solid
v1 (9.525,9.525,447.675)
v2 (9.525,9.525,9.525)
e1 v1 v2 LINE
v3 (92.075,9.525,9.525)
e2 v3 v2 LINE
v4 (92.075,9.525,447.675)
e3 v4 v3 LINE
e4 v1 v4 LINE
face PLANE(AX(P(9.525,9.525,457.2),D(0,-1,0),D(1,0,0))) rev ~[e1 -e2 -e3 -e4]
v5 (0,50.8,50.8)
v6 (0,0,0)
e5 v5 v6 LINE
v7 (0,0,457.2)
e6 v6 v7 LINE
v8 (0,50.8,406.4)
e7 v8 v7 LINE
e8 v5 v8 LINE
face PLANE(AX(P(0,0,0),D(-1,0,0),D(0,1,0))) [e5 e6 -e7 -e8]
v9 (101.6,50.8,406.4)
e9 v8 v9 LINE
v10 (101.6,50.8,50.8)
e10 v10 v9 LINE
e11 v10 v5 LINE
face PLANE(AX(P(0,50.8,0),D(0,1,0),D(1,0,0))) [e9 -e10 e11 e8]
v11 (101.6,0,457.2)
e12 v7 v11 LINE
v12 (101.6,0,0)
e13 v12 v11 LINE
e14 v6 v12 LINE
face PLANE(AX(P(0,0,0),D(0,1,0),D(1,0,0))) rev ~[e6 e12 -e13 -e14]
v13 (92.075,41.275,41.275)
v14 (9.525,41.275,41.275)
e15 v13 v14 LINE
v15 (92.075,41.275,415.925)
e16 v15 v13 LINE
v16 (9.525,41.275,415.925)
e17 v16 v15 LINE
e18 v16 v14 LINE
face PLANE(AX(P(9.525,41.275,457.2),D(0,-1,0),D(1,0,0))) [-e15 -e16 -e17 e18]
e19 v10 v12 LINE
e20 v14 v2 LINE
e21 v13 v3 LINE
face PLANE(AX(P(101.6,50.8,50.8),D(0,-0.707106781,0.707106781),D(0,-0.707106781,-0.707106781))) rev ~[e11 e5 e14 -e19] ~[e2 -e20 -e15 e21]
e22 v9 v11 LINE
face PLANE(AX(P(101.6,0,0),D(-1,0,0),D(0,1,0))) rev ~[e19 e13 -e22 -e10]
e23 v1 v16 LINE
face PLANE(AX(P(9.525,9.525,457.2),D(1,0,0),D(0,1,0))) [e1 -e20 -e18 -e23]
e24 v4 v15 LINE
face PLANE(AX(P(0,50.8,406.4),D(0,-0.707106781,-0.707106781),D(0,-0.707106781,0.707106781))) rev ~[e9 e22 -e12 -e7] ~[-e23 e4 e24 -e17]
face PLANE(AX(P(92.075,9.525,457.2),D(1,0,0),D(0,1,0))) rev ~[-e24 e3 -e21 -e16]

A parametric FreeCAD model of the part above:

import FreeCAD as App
import Part
import Sketcher
Q = App.Units.Quantity

doc = App.newDocument("Part")
body = doc.addObject("PartDesign::Body", "Body")

sketch1 = doc.addObject("Sketcher::SketchObject", "Sketch")
body.addObject(sketch1)
sketch1.AttachmentSupport = (doc.XY_Plane, [""])
sketch1.MapMode = "FlatFace"
sketch1.addGeometry([
    Part.LineSegment(App.Vector(0, 51, 0), App.Vector(0, 0, 0)),
    Part.LineSegment(App.Vector(0, 0, 0), App.Vector(102, 0, 0)),
    Part.LineSegment(App.Vector(102, 0, 0), App.Vector(102, 51, 0)),
    Part.LineSegment(App.Vector(102, 51, 0), App.Vector(0, 51, 0)),
], False)
sketch1.addConstraint([
    Sketcher.Constraint("Coincident", 0, 2, 1, 1),
    Sketcher.Constraint("Coincident", 1, 2, 2, 1),
    Sketcher.Constraint("Coincident", 2, 2, 3, 1),
    Sketcher.Constraint("Coincident", 3, 2, 0, 1),
    Sketcher.Constraint("Vertical", 0),
    Sketcher.Constraint("Horizontal", 1),
    Sketcher.Constraint("Vertical", 2),
    Sketcher.Constraint("Horizontal", 3),
    Sketcher.Constraint("Coincident", 0, 2, -1, 1),
    Sketcher.Constraint("DistanceX", 1, 1, 1, 2, Q("4 in")),
    Sketcher.Constraint("DistanceY", 0, 2, 0, 1, Q("2 in")),
])
pad1 = doc.addObject("PartDesign::Pad", "Pad")
body.addObject(pad1)
pad1.Profile = sketch1
pad1.Length = Q("18 in")

sketch2 = doc.addObject("Sketcher::SketchObject", "Sketch001")
body.addObject(sketch2)
sketch2.AttachmentSupport = (doc.XY_Plane, [""])
sketch2.MapMode = "FlatFace"
sketch2.AttachmentOffset = App.Placement(App.Vector(0, 0, 18 * 25.4), App.Rotation())
sketch2.addGeometry([
    Part.LineSegment(App.Vector(10, 41, 0), App.Vector(10, 10, 0)),
    Part.LineSegment(App.Vector(10, 10, 0), App.Vector(92, 10, 0)),
    Part.LineSegment(App.Vector(92, 10, 0), App.Vector(92, 41, 0)),
    Part.LineSegment(App.Vector(92, 41, 0), App.Vector(10, 41, 0)),
], False)
sketch2.addConstraint([
    Sketcher.Constraint("Coincident", 0, 2, 1, 1),
    Sketcher.Constraint("Coincident", 1, 2, 2, 1),
    Sketcher.Constraint("Coincident", 2, 2, 3, 1),
    Sketcher.Constraint("Coincident", 3, 2, 0, 1),
    Sketcher.Constraint("Vertical", 0),
    Sketcher.Constraint("Horizontal", 1),
    Sketcher.Constraint("Vertical", 2),
    Sketcher.Constraint("Horizontal", 3),
    Sketcher.Constraint("DistanceX", 1, 1, 1, 2, Q("3.25 in")),
    Sketcher.Constraint("DistanceY", 0, 2, 0, 1, Q("1.25 in")),
    Sketcher.Constraint("DistanceX", -1, 1, 0, 2, Q("0.375 in")),
    Sketcher.Constraint("DistanceY", -1, 1, 0, 2, Q("0.375 in")),
])
pocket1 = doc.addObject("PartDesign::Pocket", "Pocket")
body.addObject(pocket1)
pocket1.Profile = sketch2
pocket1.Length = Q("18 in")

sketch3 = doc.addObject("Sketcher::SketchObject", "Sketch002")
body.addObject(sketch3)
sketch3.AttachmentSupport = (doc.YZ_Plane, [""])
sketch3.MapMode = "FlatFace"
sketch3.AttachmentOffset = App.Placement(App.Vector(0, 0, 4 * 25.4), App.Rotation())
sketch3.addGeometry([
    Part.LineSegment(App.Vector(51, 51, 0), App.Vector(0, 0, 0)),
    Part.LineSegment(App.Vector(0, 0, 0), App.Vector(51, 0, 0)),
    Part.LineSegment(App.Vector(51, 0, 0), App.Vector(51, 51, 0)),
], False)
sketch3.addConstraint([
    Sketcher.Constraint("Coincident", 0, 2, 1, 1),
    Sketcher.Constraint("Coincident", 1, 2, 2, 1),
    Sketcher.Constraint("Coincident", 2, 2, 0, 1),
    Sketcher.Constraint("Horizontal", 1),
    Sketcher.Constraint("Vertical", 2),
    Sketcher.Constraint("Coincident", 0, 2, -1, 1),
    Sketcher.Constraint("Equal", 1, 2),
    Sketcher.Constraint("DistanceX", 1, 1, 1, 2, Q("2 in")),
])
pocket2 = doc.addObject("PartDesign::Pocket", "Pocket001")
body.addObject(pocket2)
pocket2.Profile = sketch3
pocket2.Length = Q("4 in")

sketch4 = doc.addObject("Sketcher::SketchObject", "Sketch003")
body.addObject(sketch4)
sketch4.AttachmentSupport = (doc.YZ_Plane, [""])
sketch4.MapMode = "FlatFace"
sketch4.addGeometry([
    Part.LineSegment(App.Vector(0, 457, 0), App.Vector(51, 457, 0)),
    Part.LineSegment(App.Vector(51, 457, 0), App.Vector(51, 406, 0)),
    Part.LineSegment(App.Vector(51, 406, 0), App.Vector(0, 457, 0)),
], False)
sketch4.addConstraint([
    Sketcher.Constraint("Coincident", 0, 2, 1, 1),
    Sketcher.Constraint("Coincident", 1, 2, 2, 1),
    Sketcher.Constraint("Coincident", 2, 2, 0, 1),
    Sketcher.Constraint("Horizontal", 0),
    Sketcher.Constraint("Vertical", 1),
    Sketcher.Constraint("PointOnObject", 2, 2, -2),
    Sketcher.Constraint("Equal", 0, 1),
    Sketcher.Constraint("DistanceX", 0, 1, 0, 2, Q("2 in")),
    Sketcher.Constraint("DistanceY", -1, 1, 0, 2, Q("18 in")),
])
pocket3 = doc.addObject("PartDesign::Pocket", "Pocket002")
body.addObject(pocket3)
pocket3.Profile = sketch4
pocket3.Length = Q("4 in")
pocket3.Reversed = True

doc.recompute()
